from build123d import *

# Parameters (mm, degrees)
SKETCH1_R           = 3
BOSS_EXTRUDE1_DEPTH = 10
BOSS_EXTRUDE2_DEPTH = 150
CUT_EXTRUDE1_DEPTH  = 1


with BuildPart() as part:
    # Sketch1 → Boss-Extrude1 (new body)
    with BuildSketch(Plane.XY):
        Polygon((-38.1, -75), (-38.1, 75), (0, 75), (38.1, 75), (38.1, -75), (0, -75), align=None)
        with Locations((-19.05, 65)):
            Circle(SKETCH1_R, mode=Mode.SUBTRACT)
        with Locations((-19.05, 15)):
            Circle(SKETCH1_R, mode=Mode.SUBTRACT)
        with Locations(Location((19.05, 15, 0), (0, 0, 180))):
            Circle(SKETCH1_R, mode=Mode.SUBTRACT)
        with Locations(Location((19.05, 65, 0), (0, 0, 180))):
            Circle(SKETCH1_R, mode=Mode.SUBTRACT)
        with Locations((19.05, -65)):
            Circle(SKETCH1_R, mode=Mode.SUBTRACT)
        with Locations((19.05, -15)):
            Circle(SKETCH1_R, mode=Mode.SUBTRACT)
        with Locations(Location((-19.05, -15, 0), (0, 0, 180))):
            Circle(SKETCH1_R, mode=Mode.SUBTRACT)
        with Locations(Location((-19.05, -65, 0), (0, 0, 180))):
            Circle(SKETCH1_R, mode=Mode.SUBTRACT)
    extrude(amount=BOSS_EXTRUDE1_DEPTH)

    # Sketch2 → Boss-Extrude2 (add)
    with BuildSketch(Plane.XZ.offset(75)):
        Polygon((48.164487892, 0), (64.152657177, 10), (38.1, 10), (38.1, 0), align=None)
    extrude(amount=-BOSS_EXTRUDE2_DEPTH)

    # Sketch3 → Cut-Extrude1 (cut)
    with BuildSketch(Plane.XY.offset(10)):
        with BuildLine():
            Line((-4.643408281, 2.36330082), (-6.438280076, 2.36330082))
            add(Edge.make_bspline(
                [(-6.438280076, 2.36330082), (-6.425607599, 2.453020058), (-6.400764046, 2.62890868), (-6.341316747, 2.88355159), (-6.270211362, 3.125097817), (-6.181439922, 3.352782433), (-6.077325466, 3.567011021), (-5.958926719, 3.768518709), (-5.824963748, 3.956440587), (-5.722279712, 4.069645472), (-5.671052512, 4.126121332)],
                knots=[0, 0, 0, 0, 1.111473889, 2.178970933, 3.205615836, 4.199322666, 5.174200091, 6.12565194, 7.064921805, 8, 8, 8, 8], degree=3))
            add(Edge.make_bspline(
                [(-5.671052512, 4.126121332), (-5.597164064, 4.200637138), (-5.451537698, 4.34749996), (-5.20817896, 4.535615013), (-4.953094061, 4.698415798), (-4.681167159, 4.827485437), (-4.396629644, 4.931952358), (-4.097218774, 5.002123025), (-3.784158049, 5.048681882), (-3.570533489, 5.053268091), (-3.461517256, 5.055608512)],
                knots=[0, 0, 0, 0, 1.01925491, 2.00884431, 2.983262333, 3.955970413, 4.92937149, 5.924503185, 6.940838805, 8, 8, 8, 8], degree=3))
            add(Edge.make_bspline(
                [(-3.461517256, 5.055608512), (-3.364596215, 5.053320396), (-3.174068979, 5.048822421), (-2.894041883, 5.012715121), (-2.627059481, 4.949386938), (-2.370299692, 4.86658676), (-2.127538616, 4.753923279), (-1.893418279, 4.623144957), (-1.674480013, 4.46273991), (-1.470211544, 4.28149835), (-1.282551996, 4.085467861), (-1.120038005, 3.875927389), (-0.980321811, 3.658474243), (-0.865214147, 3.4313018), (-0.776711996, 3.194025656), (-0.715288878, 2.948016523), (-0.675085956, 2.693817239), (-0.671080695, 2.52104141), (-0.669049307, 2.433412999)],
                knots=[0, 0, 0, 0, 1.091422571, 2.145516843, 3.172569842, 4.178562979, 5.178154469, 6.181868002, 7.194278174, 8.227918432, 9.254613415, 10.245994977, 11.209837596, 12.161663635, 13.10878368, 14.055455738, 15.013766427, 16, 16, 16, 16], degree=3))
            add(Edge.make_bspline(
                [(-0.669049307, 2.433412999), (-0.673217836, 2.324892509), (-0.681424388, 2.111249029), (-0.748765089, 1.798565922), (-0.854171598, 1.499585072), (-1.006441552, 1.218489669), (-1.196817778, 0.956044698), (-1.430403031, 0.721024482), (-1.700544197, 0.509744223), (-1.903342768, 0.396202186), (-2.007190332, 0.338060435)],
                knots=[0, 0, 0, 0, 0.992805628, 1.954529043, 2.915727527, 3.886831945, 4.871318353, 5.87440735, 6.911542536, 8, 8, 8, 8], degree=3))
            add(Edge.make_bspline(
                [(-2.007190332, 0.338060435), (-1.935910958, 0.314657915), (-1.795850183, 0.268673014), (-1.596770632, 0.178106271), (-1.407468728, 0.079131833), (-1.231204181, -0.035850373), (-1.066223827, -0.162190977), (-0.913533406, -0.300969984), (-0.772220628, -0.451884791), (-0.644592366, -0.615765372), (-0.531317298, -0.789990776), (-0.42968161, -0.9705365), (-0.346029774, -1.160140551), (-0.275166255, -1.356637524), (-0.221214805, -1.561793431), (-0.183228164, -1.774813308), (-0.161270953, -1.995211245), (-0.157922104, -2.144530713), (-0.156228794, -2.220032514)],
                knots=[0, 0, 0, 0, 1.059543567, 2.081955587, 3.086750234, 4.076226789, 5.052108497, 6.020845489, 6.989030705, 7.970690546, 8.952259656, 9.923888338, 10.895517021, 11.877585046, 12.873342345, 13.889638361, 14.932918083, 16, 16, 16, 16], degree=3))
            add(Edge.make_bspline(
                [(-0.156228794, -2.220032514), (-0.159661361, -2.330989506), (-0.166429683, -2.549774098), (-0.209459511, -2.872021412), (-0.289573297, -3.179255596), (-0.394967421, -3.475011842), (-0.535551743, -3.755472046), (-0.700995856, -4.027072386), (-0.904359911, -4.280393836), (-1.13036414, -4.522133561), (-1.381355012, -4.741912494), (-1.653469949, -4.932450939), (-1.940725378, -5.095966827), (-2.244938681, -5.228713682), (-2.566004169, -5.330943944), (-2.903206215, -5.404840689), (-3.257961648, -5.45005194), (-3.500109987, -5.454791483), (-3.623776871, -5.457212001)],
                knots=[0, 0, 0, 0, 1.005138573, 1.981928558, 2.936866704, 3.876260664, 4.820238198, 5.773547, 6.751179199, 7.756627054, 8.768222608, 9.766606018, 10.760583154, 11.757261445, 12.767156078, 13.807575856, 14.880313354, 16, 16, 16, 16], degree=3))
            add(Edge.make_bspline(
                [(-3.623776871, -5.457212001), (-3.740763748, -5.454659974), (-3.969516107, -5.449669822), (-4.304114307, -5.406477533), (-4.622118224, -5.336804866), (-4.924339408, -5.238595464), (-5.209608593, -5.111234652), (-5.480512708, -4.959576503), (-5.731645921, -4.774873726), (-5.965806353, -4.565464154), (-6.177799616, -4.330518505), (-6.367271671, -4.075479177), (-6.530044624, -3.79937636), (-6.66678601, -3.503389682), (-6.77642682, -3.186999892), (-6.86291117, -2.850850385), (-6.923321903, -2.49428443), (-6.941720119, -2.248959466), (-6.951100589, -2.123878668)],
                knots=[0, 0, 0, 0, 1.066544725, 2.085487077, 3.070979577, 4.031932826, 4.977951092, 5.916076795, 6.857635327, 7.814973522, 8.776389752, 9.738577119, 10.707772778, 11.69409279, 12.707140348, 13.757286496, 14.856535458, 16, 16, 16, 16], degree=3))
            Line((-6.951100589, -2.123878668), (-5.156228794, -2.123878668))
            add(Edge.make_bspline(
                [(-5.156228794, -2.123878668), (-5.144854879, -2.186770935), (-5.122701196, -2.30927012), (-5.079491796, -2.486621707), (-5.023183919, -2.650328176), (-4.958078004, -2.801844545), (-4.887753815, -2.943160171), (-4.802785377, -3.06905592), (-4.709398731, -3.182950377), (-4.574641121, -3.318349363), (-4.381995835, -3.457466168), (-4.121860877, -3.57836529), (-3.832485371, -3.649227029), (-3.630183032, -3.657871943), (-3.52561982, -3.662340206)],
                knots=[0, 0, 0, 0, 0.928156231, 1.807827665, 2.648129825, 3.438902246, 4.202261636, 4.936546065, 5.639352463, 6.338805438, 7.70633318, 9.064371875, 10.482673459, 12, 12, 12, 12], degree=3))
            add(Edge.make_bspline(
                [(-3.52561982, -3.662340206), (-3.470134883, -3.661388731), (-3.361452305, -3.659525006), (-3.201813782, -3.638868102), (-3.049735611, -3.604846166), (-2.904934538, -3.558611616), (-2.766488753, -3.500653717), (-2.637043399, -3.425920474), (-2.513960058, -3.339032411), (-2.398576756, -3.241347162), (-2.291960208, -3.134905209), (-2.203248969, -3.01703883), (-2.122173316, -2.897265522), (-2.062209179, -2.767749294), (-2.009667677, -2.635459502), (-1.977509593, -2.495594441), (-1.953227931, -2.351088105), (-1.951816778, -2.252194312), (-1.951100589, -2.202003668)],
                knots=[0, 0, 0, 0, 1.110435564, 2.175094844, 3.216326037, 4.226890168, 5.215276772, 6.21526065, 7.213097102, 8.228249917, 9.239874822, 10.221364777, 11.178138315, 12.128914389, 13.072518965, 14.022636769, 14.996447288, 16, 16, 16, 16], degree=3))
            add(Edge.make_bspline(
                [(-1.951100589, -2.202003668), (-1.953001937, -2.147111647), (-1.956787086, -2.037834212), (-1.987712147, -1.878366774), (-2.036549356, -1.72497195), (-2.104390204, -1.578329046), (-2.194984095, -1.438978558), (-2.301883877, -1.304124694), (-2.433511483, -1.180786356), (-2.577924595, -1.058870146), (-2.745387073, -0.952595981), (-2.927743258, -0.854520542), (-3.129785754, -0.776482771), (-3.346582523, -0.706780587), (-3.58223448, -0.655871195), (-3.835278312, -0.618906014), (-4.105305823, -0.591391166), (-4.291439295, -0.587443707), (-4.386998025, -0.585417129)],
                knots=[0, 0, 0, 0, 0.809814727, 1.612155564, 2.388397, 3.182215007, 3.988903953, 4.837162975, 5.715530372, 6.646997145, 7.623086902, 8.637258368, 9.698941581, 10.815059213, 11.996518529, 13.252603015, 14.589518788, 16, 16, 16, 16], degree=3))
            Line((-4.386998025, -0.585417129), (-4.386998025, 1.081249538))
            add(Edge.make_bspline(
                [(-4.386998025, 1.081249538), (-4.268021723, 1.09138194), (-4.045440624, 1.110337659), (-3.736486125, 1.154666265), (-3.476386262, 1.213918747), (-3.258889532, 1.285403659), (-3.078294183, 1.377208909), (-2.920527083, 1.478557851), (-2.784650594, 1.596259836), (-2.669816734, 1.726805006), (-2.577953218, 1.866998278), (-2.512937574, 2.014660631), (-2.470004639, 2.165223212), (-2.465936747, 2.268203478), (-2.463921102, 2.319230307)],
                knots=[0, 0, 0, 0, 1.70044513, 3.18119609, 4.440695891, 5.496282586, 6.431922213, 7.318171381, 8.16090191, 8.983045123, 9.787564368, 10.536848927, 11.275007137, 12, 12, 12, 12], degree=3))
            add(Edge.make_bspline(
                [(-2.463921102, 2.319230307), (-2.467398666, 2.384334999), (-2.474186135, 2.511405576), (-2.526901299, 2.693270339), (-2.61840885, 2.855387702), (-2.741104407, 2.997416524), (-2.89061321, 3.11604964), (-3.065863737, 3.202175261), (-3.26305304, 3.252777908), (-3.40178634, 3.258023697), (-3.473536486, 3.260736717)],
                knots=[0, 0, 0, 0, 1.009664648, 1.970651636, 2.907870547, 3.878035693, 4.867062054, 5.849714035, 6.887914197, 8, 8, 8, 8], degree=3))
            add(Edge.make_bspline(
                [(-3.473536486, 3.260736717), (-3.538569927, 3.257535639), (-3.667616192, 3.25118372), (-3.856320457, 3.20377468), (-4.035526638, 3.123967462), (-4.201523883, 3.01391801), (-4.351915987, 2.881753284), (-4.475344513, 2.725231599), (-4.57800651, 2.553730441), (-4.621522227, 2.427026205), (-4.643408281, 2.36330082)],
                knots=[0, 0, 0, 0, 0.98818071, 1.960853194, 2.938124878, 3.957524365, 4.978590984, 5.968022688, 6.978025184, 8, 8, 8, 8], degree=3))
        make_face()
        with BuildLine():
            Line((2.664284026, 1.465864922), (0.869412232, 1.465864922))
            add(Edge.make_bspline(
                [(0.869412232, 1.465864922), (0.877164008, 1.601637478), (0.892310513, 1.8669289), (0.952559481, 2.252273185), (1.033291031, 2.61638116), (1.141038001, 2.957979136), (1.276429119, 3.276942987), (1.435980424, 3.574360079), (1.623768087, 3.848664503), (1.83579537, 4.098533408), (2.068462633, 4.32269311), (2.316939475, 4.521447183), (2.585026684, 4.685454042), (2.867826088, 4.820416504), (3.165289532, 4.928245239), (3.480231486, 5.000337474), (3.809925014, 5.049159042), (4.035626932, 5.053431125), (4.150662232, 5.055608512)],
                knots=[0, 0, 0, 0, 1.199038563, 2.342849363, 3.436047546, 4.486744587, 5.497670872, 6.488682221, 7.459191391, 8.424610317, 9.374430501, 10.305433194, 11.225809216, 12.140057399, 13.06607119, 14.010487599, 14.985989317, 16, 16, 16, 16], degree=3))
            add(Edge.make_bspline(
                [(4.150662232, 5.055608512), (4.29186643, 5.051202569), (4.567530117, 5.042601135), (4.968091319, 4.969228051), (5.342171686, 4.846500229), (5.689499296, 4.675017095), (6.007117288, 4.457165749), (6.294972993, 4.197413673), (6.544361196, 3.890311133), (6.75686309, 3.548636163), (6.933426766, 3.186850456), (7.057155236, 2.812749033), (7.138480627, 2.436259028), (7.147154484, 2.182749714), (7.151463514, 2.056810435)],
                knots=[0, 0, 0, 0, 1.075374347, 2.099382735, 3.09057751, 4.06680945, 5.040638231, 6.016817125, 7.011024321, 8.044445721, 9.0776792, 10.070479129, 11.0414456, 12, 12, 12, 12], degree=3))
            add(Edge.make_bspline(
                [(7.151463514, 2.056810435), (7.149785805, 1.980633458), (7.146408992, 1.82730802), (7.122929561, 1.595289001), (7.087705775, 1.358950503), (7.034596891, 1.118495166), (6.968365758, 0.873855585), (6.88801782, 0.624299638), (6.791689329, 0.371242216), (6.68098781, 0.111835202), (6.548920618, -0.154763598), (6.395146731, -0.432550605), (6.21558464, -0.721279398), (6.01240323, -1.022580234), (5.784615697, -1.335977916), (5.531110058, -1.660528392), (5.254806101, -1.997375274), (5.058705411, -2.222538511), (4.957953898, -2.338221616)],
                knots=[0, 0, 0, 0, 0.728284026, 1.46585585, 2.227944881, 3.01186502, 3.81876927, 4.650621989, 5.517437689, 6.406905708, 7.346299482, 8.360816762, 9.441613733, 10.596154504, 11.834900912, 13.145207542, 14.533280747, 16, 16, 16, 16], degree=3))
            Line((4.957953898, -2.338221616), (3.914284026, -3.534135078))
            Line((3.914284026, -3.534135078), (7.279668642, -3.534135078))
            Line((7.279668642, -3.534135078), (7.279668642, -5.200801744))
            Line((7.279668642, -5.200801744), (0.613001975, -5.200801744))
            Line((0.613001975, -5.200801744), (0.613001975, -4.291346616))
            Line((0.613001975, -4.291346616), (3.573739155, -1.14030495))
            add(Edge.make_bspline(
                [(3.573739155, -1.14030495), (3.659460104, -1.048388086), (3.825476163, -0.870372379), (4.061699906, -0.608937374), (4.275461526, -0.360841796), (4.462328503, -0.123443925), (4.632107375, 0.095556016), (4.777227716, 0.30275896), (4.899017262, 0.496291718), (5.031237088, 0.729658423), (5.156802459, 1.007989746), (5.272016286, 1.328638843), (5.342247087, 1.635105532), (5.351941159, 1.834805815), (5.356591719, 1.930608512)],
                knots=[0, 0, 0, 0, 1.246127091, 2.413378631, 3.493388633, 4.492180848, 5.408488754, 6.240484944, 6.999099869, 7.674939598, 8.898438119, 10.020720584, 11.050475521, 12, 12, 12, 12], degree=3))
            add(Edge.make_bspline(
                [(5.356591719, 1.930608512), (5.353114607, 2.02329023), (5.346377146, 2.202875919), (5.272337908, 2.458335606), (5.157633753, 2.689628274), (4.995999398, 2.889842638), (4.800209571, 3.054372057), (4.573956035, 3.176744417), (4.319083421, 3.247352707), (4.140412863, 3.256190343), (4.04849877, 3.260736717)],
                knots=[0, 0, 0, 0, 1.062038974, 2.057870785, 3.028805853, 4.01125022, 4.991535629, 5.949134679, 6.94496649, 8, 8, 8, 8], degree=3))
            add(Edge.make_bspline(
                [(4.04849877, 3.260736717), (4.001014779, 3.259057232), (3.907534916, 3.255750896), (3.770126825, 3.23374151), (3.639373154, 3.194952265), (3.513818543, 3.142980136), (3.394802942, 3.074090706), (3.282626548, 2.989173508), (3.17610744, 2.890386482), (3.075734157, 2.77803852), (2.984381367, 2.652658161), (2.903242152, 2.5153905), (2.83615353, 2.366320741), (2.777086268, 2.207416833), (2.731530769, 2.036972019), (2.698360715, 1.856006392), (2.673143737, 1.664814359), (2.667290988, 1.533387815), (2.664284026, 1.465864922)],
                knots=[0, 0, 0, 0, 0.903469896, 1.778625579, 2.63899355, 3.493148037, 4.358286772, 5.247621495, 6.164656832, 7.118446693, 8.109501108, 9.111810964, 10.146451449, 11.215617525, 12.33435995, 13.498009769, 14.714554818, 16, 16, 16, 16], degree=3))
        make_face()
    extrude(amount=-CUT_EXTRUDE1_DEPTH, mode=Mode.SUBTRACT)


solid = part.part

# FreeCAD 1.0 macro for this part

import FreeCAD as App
import Part
import Sketcher
Q = App.Units.Quantity


def add_polygon(sketch, points):
    """Adds a closed chain of lines whose ends are joined by coincident constraints."""
    first, n = sketch.GeometryCount, len(points)
    for a, b in zip(points, points[1:] + points[:1]):
        sketch.addGeometry(Part.LineSegment(App.Vector(*a, 0), App.Vector(*b, 0)), False)
    for i in range(n):
        sketch.addConstraint(Sketcher.Constraint("Coincident", first + i, 2, first + (i + 1) % n, 1))

doc = App.newDocument("Part")
body = doc.addObject("PartDesign::Body", "Body")

sketch1 = doc.addObject("Sketcher::SketchObject", "Sketch")
body.addObject(sketch1)
sketch1.AttachmentSupport = (doc.XY_Plane, [""])
sketch1.MapMode = "FlatFace"
add_polygon(sketch1, [(-38.1, 75), (-38.1, -75), (38.1, -75), (38.1, 75)])
sketch1.addGeometry(Part.Circle(App.Vector(19.1, -65, 0), App.Vector(0, 0, 1), 3), False)
sketch1.addGeometry(Part.Circle(App.Vector(19.1, -15, 0), App.Vector(0, 0, 1), 3), False)
sketch1.addGeometry(Part.Circle(App.Vector(-19.1, -65, 0), App.Vector(0, 0, 1), 3), False)
sketch1.addGeometry(Part.Circle(App.Vector(-19.1, -15, 0), App.Vector(0, 0, 1), 3), False)
sketch1.addGeometry(Part.Circle(App.Vector(19.1, 15, 0), App.Vector(0, 0, 1), 3), False)
sketch1.addGeometry(Part.Circle(App.Vector(19.1, 65, 0), App.Vector(0, 0, 1), 3), False)
sketch1.addGeometry(Part.Circle(App.Vector(-19.1, 15, 0), App.Vector(0, 0, 1), 3), False)
sketch1.addGeometry(Part.Circle(App.Vector(-19.1, 65, 0), App.Vector(0, 0, 1), 3), False)
sketch1.addConstraint([
    Sketcher.Constraint("Vertical", 0),
    Sketcher.Constraint("Horizontal", 1),
    Sketcher.Constraint("Vertical", 2),
    Sketcher.Constraint("Horizontal", 3),
    Sketcher.Constraint("Equal", 4, 5),
    Sketcher.Constraint("Equal", 5, 6),
    Sketcher.Constraint("Equal", 6, 7),
    Sketcher.Constraint("Equal", 7, 8),
    Sketcher.Constraint("Equal", 8, 9),
    Sketcher.Constraint("Equal", 9, 10),
    Sketcher.Constraint("Equal", 10, 11),
    Sketcher.Constraint("Symmetric", 7, 3, 8, 3, -1, 1),
    Sketcher.Constraint("Symmetric", 6, 3, 9, 3, -1, 1),
    Sketcher.Constraint("Symmetric", 5, 3, 10, 3, -1, 1),
    Sketcher.Constraint("Symmetric", 4, 3, 11, 3, -1, 1),
    Sketcher.Constraint("Symmetric", 0, 2, 2, 2, -1, 1),
    Sketcher.Constraint("Symmetric", 4, 3, 6, 3, -2),
    Sketcher.Constraint("Symmetric", 5, 3, 7, 3, -2),
    Sketcher.Constraint("Vertical", 4, 3, 5, 3),
    Sketcher.Constraint("Diameter", 4, Q("6 mm")),
    Sketcher.Constraint("DistanceY", 0, 2, 0, 1, Q("150 mm")),
    Sketcher.Constraint("DistanceX", 1, 1, 1, 2, Q("76.2 mm")),
    Sketcher.Constraint("DistanceY", 4, 3, -1, 1, Q("65 mm")),
    Sketcher.Constraint("DistanceY", 5, 3, -1, 1, Q("15 mm")),
    Sketcher.Constraint("DistanceX", 6, 3, 4, 3, Q("38.1 mm")),
])
pad1 = doc.addObject("PartDesign::Pad", "Pad")
body.addObject(pad1)
pad1.Profile = sketch1
pad1.Length = 10

sketch2 = doc.addObject("Sketcher::SketchObject", "Sketch001")
body.addObject(sketch2)
sketch2.AttachmentSupport = (doc.XZ_Plane, [""])
sketch2.MapMode = "FlatFace"
sketch2.AttachmentOffset = App.Placement(App.Vector(0, 0, 75), App.Rotation())
add_polygon(sketch2, [(48, 0), (64, 10), (38, 10), (38, 0)])
sketch2.addConstraint([
    Sketcher.Constraint("Horizontal", 1),
    Sketcher.Constraint("Vertical", 2),
    Sketcher.Constraint("Horizontal", 3),
    Sketcher.Constraint("PointOnObject", 2, 2, -1),
    Sketcher.Constraint("DistanceY", 2, 2, 2, 1, Q("10 mm")),
    Sketcher.Constraint("DistanceX", -1, 1, 1, 2, Q("38.1 mm")),
    Sketcher.Constraint("Distance", 0, Q("18.857931 mm")),
    Sketcher.Constraint("DistanceX", 1, 2, 1, 1, Q("26.052657 mm")),
])
pad2 = doc.addObject("PartDesign::Pad", "Pad001")
body.addObject(pad2)
pad2.Profile = sketch2
pad2.Length = 150
pad2.Reversed = True

sketch3 = doc.addObject("Sketcher::SketchObject", "Sketch002")
body.addObject(sketch3)
sketch3.AttachmentSupport = (doc.XY_Plane, [""])
sketch3.MapMode = "FlatFace"
sketch3.AttachmentOffset = App.Placement(App.Vector(0, 0, 10), App.Rotation())
sketch3.addGeometry([
    Part.LineSegment(App.Vector(-6.43828, 2.363301, 0), App.Vector(-4.643408, 2.363301, 0)),
    Part.BSplineCurve([App.Vector(-3.473536, 3.260737, 0), App.Vector(-3.53857, 3.257536, 0), App.Vector(-3.667616, 3.251184, 0), App.Vector(-3.85632, 3.203775, 0), App.Vector(-4.035527, 3.123967, 0), App.Vector(-4.201524, 3.013918, 0), App.Vector(-4.351916, 2.881753, 0), App.Vector(-4.475345, 2.725232, 0), App.Vector(-4.578007, 2.55373, 0), App.Vector(-4.621522, 2.427026, 0), App.Vector(-4.643408, 2.363301, 0)], [4, 1, 1, 1, 1, 1, 1, 1, 4], [0, 0.98818071, 1.960853194, 2.938124878, 3.957524365, 4.978590984, 5.968022688, 6.978025184, 8], False, 3, [1, 1, 1, 1, 1, 1, 1, 1, 1, 1, 1], False),
    Part.BSplineCurve([App.Vector(-2.463921, 2.31923, 0), App.Vector(-2.467399, 2.384335, 0), App.Vector(-2.474186, 2.511406, 0), App.Vector(-2.526901, 2.69327, 0), App.Vector(-2.618409, 2.855388, 0), App.Vector(-2.741104, 2.997417, 0), App.Vector(-2.890613, 3.11605, 0), App.Vector(-3.065864, 3.202175, 0), App.Vector(-3.263053, 3.252778, 0), App.Vector(-3.401786, 3.258024, 0), App.Vector(-3.473536, 3.260737, 0)], [4, 1, 1, 1, 1, 1, 1, 1, 4], [0, 1.009664648, 1.970651636, 2.907870547, 3.878035693, 4.867062054, 5.849714035, 6.887914197, 8], False, 3, [1, 1, 1, 1, 1, 1, 1, 1, 1, 1, 1], False),
    Part.BSplineCurve([App.Vector(-4.386998, 1.08125, 0), App.Vector(-4.268022, 1.091382, 0), App.Vector(-4.045441, 1.110338, 0), App.Vector(-3.736486, 1.154666, 0), App.Vector(-3.476386, 1.213919, 0), App.Vector(-3.25889, 1.285404, 0), App.Vector(-3.078294, 1.377209, 0), App.Vector(-2.920527, 1.478558, 0), App.Vector(-2.784651, 1.59626, 0), App.Vector(-2.669817, 1.726805, 0), App.Vector(-2.577953, 1.866998, 0), App.Vector(-2.512938, 2.014661, 0), App.Vector(-2.470005, 2.165223, 0), App.Vector(-2.465937, 2.268203, 0), App.Vector(-2.463921, 2.31923, 0)], [4, 1, 1, 1, 1, 1, 1, 1, 1, 1, 1, 1, 4], [0, 1.70044513, 3.18119609, 4.440695891, 5.496282586, 6.431922213, 7.318171381, 8.16090191, 8.983045123, 9.787564368, 10.536848927, 11.275007137, 12], False, 3, [1, 1, 1, 1, 1, 1, 1, 1, 1, 1, 1, 1, 1, 1, 1], False),
    Part.LineSegment(App.Vector(-4.386998, 1.08125, 0), App.Vector(-4.386998, -0.585417, 0)),
    Part.BSplineCurve([App.Vector(-1.951101, -2.202004, 0), App.Vector(-1.953002, -2.147112, 0), App.Vector(-1.956787, -2.037834, 0), App.Vector(-1.987712, -1.878367, 0), App.Vector(-2.036549, -1.724972, 0), App.Vector(-2.10439, -1.578329, 0), App.Vector(-2.194984, -1.438979, 0), App.Vector(-2.301884, -1.304125, 0), App.Vector(-2.433511, -1.180786, 0), App.Vector(-2.577925, -1.05887, 0), App.Vector(-2.745387, -0.952596, 0), App.Vector(-2.927743, -0.854521, 0), App.Vector(-3.129786, -0.776483, 0), App.Vector(-3.346583, -0.706781, 0), App.Vector(-3.582234, -0.655871, 0), App.Vector(-3.835278, -0.618906, 0), App.Vector(-4.105306, -0.591391, 0), App.Vector(-4.291439, -0.587444, 0), App.Vector(-4.386998, -0.585417, 0)], [4, 1, 1, 1, 1, 1, 1, 1, 1, 1, 1, 1, 1, 1, 1, 1, 4], [0, 0.809814727, 1.612155564, 2.388397, 3.182215007, 3.988903953, 4.837162975, 5.715530372, 6.646997145, 7.623086902, 8.637258368, 9.698941581, 10.815059213, 11.996518529, 13.252603015, 14.589518788, 16], False, 3, [1, 1, 1, 1, 1, 1, 1, 1, 1, 1, 1, 1, 1, 1, 1, 1, 1, 1, 1], False),
    Part.BSplineCurve([App.Vector(-3.52562, -3.66234, 0), App.Vector(-3.470135, -3.661389, 0), App.Vector(-3.361452, -3.659525, 0), App.Vector(-3.201814, -3.638868, 0), App.Vector(-3.049736, -3.604846, 0), App.Vector(-2.904935, -3.558612, 0), App.Vector(-2.766489, -3.500654, 0), App.Vector(-2.637043, -3.42592, 0), App.Vector(-2.51396, -3.339032, 0), App.Vector(-2.398577, -3.241347, 0), App.Vector(-2.29196, -3.134905, 0), App.Vector(-2.203249, -3.017039, 0), App.Vector(-2.122173, -2.897266, 0), App.Vector(-2.062209, -2.767749, 0), App.Vector(-2.009668, -2.63546, 0), App.Vector(-1.97751, -2.495594, 0), App.Vector(-1.953228, -2.351088, 0), App.Vector(-1.951817, -2.252194, 0), App.Vector(-1.951101, -2.202004, 0)], [4, 1, 1, 1, 1, 1, 1, 1, 1, 1, 1, 1, 1, 1, 1, 1, 4], [0, 1.110435564, 2.175094844, 3.216326037, 4.226890168, 5.215276772, 6.21526065, 7.213097102, 8.228249917, 9.239874822, 10.221364777, 11.178138315, 12.128914389, 13.072518965, 14.022636769, 14.996447288, 16], False, 3, [1, 1, 1, 1, 1, 1, 1, 1, 1, 1, 1, 1, 1, 1, 1, 1, 1, 1, 1], False),
    Part.BSplineCurve([App.Vector(-5.156229, -2.123879, 0), App.Vector(-5.144855, -2.186771, 0), App.Vector(-5.122701, -2.30927, 0), App.Vector(-5.079492, -2.486622, 0), App.Vector(-5.023184, -2.650328, 0), App.Vector(-4.958078, -2.801845, 0), App.Vector(-4.887754, -2.94316, 0), App.Vector(-4.802785, -3.069056, 0), App.Vector(-4.709399, -3.18295, 0), App.Vector(-4.574641, -3.318349, 0), App.Vector(-4.381996, -3.457466, 0), App.Vector(-4.121861, -3.578365, 0), App.Vector(-3.832485, -3.649227, 0), App.Vector(-3.630183, -3.657872, 0), App.Vector(-3.52562, -3.66234, 0)], [4, 1, 1, 1, 1, 1, 1, 1, 1, 1, 1, 1, 4], [0, 0.928156231, 1.807827665, 2.648129825, 3.438902246, 4.202261636, 4.936546065, 5.639352463, 6.338805438, 7.70633318, 9.064371875, 10.482673459, 12], False, 3, [1, 1, 1, 1, 1, 1, 1, 1, 1, 1, 1, 1, 1, 1, 1], False),
    Part.LineSegment(App.Vector(-5.156229, -2.123879, 0), App.Vector(-6.951101, -2.123879, 0)),
    Part.BSplineCurve([App.Vector(-3.623777, -5.457212, 0), App.Vector(-3.740764, -5.45466, 0), App.Vector(-3.969516, -5.44967, 0), App.Vector(-4.304114, -5.406478, 0), App.Vector(-4.622118, -5.336805, 0), App.Vector(-4.924339, -5.238595, 0), App.Vector(-5.209609, -5.111235, 0), App.Vector(-5.480513, -4.959577, 0), App.Vector(-5.731646, -4.774874, 0), App.Vector(-5.965806, -4.565464, 0), App.Vector(-6.1778, -4.330519, 0), App.Vector(-6.367272, -4.075479, 0), App.Vector(-6.530045, -3.799376, 0), App.Vector(-6.666786, -3.50339, 0), App.Vector(-6.776427, -3.187, 0), App.Vector(-6.862911, -2.85085, 0), App.Vector(-6.923322, -2.494284, 0), App.Vector(-6.94172, -2.248959, 0), App.Vector(-6.951101, -2.123879, 0)], [4, 1, 1, 1, 1, 1, 1, 1, 1, 1, 1, 1, 1, 1, 1, 1, 4], [0, 1.066544725, 2.085487077, 3.070979577, 4.031932826, 4.977951092, 5.916076795, 6.857635327, 7.814973522, 8.776389752, 9.738577119, 10.707772778, 11.69409279, 12.707140348, 13.757286496, 14.856535458, 16], False, 3, [1, 1, 1, 1, 1, 1, 1, 1, 1, 1, 1, 1, 1, 1, 1, 1, 1, 1, 1], False),
    Part.BSplineCurve([App.Vector(-0.156229, -2.220033, 0), App.Vector(-0.159661, -2.33099, 0), App.Vector(-0.16643, -2.549774, 0), App.Vector(-0.20946, -2.872021, 0), App.Vector(-0.289573, -3.179256, 0), App.Vector(-0.394967, -3.475012, 0), App.Vector(-0.535552, -3.755472, 0), App.Vector(-0.700996, -4.027072, 0), App.Vector(-0.90436, -4.280394, 0), App.Vector(-1.130364, -4.522134, 0), App.Vector(-1.381355, -4.741912, 0), App.Vector(-1.65347, -4.932451, 0), App.Vector(-1.940725, -5.095967, 0), App.Vector(-2.244939, -5.228714, 0), App.Vector(-2.566004, -5.330944, 0), App.Vector(-2.903206, -5.404841, 0), App.Vector(-3.257962, -5.450052, 0), App.Vector(-3.50011, -5.454791, 0), App.Vector(-3.623777, -5.457212, 0)], [4, 1, 1, 1, 1, 1, 1, 1, 1, 1, 1, 1, 1, 1, 1, 1, 4], [0, 1.005138573, 1.981928558, 2.936866704, 3.876260664, 4.820238198, 5.773547, 6.751179199, 7.756627054, 8.768222608, 9.766606018, 10.760583154, 11.757261445, 12.767156078, 13.807575856, 14.880313354, 16], False, 3, [1, 1, 1, 1, 1, 1, 1, 1, 1, 1, 1, 1, 1, 1, 1, 1, 1, 1, 1], False),
    Part.BSplineCurve([App.Vector(-2.00719, 0.33806, 0), App.Vector(-1.935911, 0.314658, 0), App.Vector(-1.79585, 0.268673, 0), App.Vector(-1.596771, 0.178106, 0), App.Vector(-1.407469, 0.079132, 0), App.Vector(-1.231204, -0.03585, 0), App.Vector(-1.066224, -0.162191, 0), App.Vector(-0.913533, -0.30097, 0), App.Vector(-0.772221, -0.451885, 0), App.Vector(-0.644592, -0.615765, 0), App.Vector(-0.531317, -0.789991, 0), App.Vector(-0.429682, -0.970537, 0), App.Vector(-0.34603, -1.160141, 0), App.Vector(-0.275166, -1.356638, 0), App.Vector(-0.221215, -1.561793, 0), App.Vector(-0.183228, -1.774813, 0), App.Vector(-0.161271, -1.995211, 0), App.Vector(-0.157922, -2.144531, 0), App.Vector(-0.156229, -2.220033, 0)], [4, 1, 1, 1, 1, 1, 1, 1, 1, 1, 1, 1, 1, 1, 1, 1, 4], [0, 1.059543567, 2.081955587, 3.086750234, 4.076226789, 5.052108497, 6.020845489, 6.989030705, 7.970690546, 8.952259656, 9.923888338, 10.895517021, 11.877585046, 12.873342345, 13.889638361, 14.932918083, 16], False, 3, [1, 1, 1, 1, 1, 1, 1, 1, 1, 1, 1, 1, 1, 1, 1, 1, 1, 1, 1], False),
    Part.BSplineCurve([App.Vector(-0.669049, 2.433413, 0), App.Vector(-0.673218, 2.324893, 0), App.Vector(-0.681424, 2.111249, 0), App.Vector(-0.748765, 1.798566, 0), App.Vector(-0.854172, 1.499585, 0), App.Vector(-1.006442, 1.21849, 0), App.Vector(-1.196818, 0.956045, 0), App.Vector(-1.430403, 0.721024, 0), App.Vector(-1.700544, 0.509744, 0), App.Vector(-1.903343, 0.396202, 0), App.Vector(-2.00719, 0.33806, 0)], [4, 1, 1, 1, 1, 1, 1, 1, 4], [0, 0.992805628, 1.954529043, 2.915727527, 3.886831945, 4.871318353, 5.87440735, 6.911542536, 8], False, 3, [1, 1, 1, 1, 1, 1, 1, 1, 1, 1, 1], False),
    Part.BSplineCurve([App.Vector(-3.461517, 5.055609, 0), App.Vector(-3.364596, 5.05332, 0), App.Vector(-3.174069, 5.048822, 0), App.Vector(-2.894042, 5.012715, 0), App.Vector(-2.627059, 4.949387, 0), App.Vector(-2.3703, 4.866587, 0), App.Vector(-2.127539, 4.753923, 0), App.Vector(-1.893418, 4.623145, 0), App.Vector(-1.67448, 4.46274, 0), App.Vector(-1.470212, 4.281498, 0), App.Vector(-1.282552, 4.085468, 0), App.Vector(-1.120038, 3.875927, 0), App.Vector(-0.980322, 3.658474, 0), App.Vector(-0.865214, 3.431302, 0), App.Vector(-0.776712, 3.194026, 0), App.Vector(-0.715289, 2.948017, 0), App.Vector(-0.675086, 2.693817, 0), App.Vector(-0.671081, 2.521041, 0), App.Vector(-0.669049, 2.433413, 0)], [4, 1, 1, 1, 1, 1, 1, 1, 1, 1, 1, 1, 1, 1, 1, 1, 4], [0, 1.091422571, 2.145516843, 3.172569842, 4.178562979, 5.178154469, 6.181868002, 7.194278174, 8.227918432, 9.254613415, 10.245994977, 11.209837596, 12.161663635, 13.10878368, 14.055455738, 15.013766427, 16], False, 3, [1, 1, 1, 1, 1, 1, 1, 1, 1, 1, 1, 1, 1, 1, 1, 1, 1, 1, 1], False),
    Part.BSplineCurve([App.Vector(-5.671053, 4.126121, 0), App.Vector(-5.597164, 4.200637, 0), App.Vector(-5.451538, 4.3475, 0), App.Vector(-5.208179, 4.535615, 0), App.Vector(-4.953094, 4.698416, 0), App.Vector(-4.681167, 4.827485, 0), App.Vector(-4.39663, 4.931952, 0), App.Vector(-4.097219, 5.002123, 0), App.Vector(-3.784158, 5.048682, 0), App.Vector(-3.570533, 5.053268, 0), App.Vector(-3.461517, 5.055609, 0)], [4, 1, 1, 1, 1, 1, 1, 1, 4], [0, 1.01925491, 2.00884431, 2.983262333, 3.955970413, 4.92937149, 5.924503185, 6.940838805, 8], False, 3, [1, 1, 1, 1, 1, 1, 1, 1, 1, 1, 1], False),
    Part.BSplineCurve([App.Vector(-6.43828, 2.363301, 0), App.Vector(-6.425608, 2.45302, 0), App.Vector(-6.400764, 2.628909, 0), App.Vector(-6.341317, 2.883552, 0), App.Vector(-6.270211, 3.125098, 0), App.Vector(-6.18144, 3.352782, 0), App.Vector(-6.077325, 3.567011, 0), App.Vector(-5.958927, 3.768519, 0), App.Vector(-5.824964, 3.956441, 0), App.Vector(-5.72228, 4.069645, 0), App.Vector(-5.671053, 4.126121, 0)], [4, 1, 1, 1, 1, 1, 1, 1, 4], [0, 1.111473889, 2.178970933, 3.205615836, 4.199322666, 5.174200091, 6.12565194, 7.064921805, 8], False, 3, [1, 1, 1, 1, 1, 1, 1, 1, 1, 1, 1], False),
    Part.LineSegment(App.Vector(0.869412, 1.465865, 0), App.Vector(2.664284, 1.465865, 0)),
    Part.BSplineCurve([App.Vector(4.048499, 3.260737, 0), App.Vector(4.001015, 3.259057, 0), App.Vector(3.907535, 3.255751, 0), App.Vector(3.770127, 3.233742, 0), App.Vector(3.639373, 3.194952, 0), App.Vector(3.513819, 3.14298, 0), App.Vector(3.394803, 3.074091, 0), App.Vector(3.282627, 2.989174, 0), App.Vector(3.176107, 2.890386, 0), App.Vector(3.075734, 2.778039, 0), App.Vector(2.984381, 2.652658, 0), App.Vector(2.903242, 2.515391, 0), App.Vector(2.836154, 2.366321, 0), App.Vector(2.777086, 2.207417, 0), App.Vector(2.731531, 2.036972, 0), App.Vector(2.698361, 1.856006, 0), App.Vector(2.673144, 1.664814, 0), App.Vector(2.667291, 1.533388, 0), App.Vector(2.664284, 1.465865, 0)], [4, 1, 1, 1, 1, 1, 1, 1, 1, 1, 1, 1, 1, 1, 1, 1, 4], [0, 0.903469896, 1.778625579, 2.63899355, 3.493148037, 4.358286772, 5.247621495, 6.164656832, 7.118446693, 8.109501108, 9.111810964, 10.146451449, 11.215617525, 12.33435995, 13.498009769, 14.714554818, 16], False, 3, [1, 1, 1, 1, 1, 1, 1, 1, 1, 1, 1, 1, 1, 1, 1, 1, 1, 1, 1], False),
    Part.BSplineCurve([App.Vector(5.356592, 1.930609, 0), App.Vector(5.353115, 2.02329, 0), App.Vector(5.346377, 2.202876, 0), App.Vector(5.272338, 2.458336, 0), App.Vector(5.157634, 2.689628, 0), App.Vector(4.995999, 2.889843, 0), App.Vector(4.80021, 3.054372, 0), App.Vector(4.573956, 3.176744, 0), App.Vector(4.319083, 3.247353, 0), App.Vector(4.140413, 3.25619, 0), App.Vector(4.048499, 3.260737, 0)], [4, 1, 1, 1, 1, 1, 1, 1, 4], [0, 1.062038974, 2.057870785, 3.028805853, 4.01125022, 4.991535629, 5.949134679, 6.94496649, 8], False, 3, [1, 1, 1, 1, 1, 1, 1, 1, 1, 1, 1], False),
    Part.BSplineCurve([App.Vector(3.573739, -1.140305, 0), App.Vector(3.65946, -1.048388, 0), App.Vector(3.825476, -0.870372, 0), App.Vector(4.0617, -0.608937, 0), App.Vector(4.275462, -0.360842, 0), App.Vector(4.462329, -0.123444, 0), App.Vector(4.632107, 0.095556, 0), App.Vector(4.777228, 0.302759, 0), App.Vector(4.899017, 0.496292, 0), App.Vector(5.031237, 0.729658, 0), App.Vector(5.156802, 1.00799, 0), App.Vector(5.272016, 1.328639, 0), App.Vector(5.342247, 1.635106, 0), App.Vector(5.351941, 1.834806, 0), App.Vector(5.356592, 1.930609, 0)], [4, 1, 1, 1, 1, 1, 1, 1, 1, 1, 1, 1, 4], [0, 1.246127091, 2.413378631, 3.493388633, 4.492180848, 5.408488754, 6.240484944, 6.999099869, 7.674939598, 8.898438119, 10.020720584, 11.050475521, 12], False, 3, [1, 1, 1, 1, 1, 1, 1, 1, 1, 1, 1, 1, 1, 1, 1], False),
    Part.LineSegment(App.Vector(3.573739, -1.140305, 0), App.Vector(0.613002, -4.291347, 0)),
    Part.LineSegment(App.Vector(0.613002, -4.291347, 0), App.Vector(0.613002, -5.200802, 0)),
    Part.LineSegment(App.Vector(0.613002, -5.200802, 0), App.Vector(7.279669, -5.200802, 0)),
    Part.LineSegment(App.Vector(7.279669, -5.200802, 0), App.Vector(7.279669, -3.534135, 0)),
    Part.LineSegment(App.Vector(7.279669, -3.534135, 0), App.Vector(3.914284, -3.534135, 0)),
    Part.LineSegment(App.Vector(3.914284, -3.534135, 0), App.Vector(4.957954, -2.338222, 0)),
    Part.BSplineCurve([App.Vector(7.151464, 2.05681, 0), App.Vector(7.149786, 1.980633, 0), App.Vector(7.146409, 1.827308, 0), App.Vector(7.12293, 1.595289, 0), App.Vector(7.087706, 1.358951, 0), App.Vector(7.034597, 1.118495, 0), App.Vector(6.968366, 0.873856, 0), App.Vector(6.888018, 0.6243, 0), App.Vector(6.791689, 0.371242, 0), App.Vector(6.680988, 0.111835, 0), App.Vector(6.548921, -0.154764, 0), App.Vector(6.395147, -0.432551, 0), App.Vector(6.215585, -0.721279, 0), App.Vector(6.012403, -1.02258, 0), App.Vector(5.784616, -1.335978, 0), App.Vector(5.53111, -1.660528, 0), App.Vector(5.254806, -1.997375, 0), App.Vector(5.058705, -2.222539, 0), App.Vector(4.957954, -2.338222, 0)], [4, 1, 1, 1, 1, 1, 1, 1, 1, 1, 1, 1, 1, 1, 1, 1, 4], [0, 0.728284026, 1.46585585, 2.227944881, 3.01186502, 3.81876927, 4.650621989, 5.517437689, 6.406905708, 7.346299482, 8.360816762, 9.441613733, 10.596154504, 11.834900912, 13.145207542, 14.533280747, 16], False, 3, [1, 1, 1, 1, 1, 1, 1, 1, 1, 1, 1, 1, 1, 1, 1, 1, 1, 1, 1], False),
    Part.BSplineCurve([App.Vector(4.150662, 5.055609, 0), App.Vector(4.291866, 5.051203, 0), App.Vector(4.56753, 5.042601, 0), App.Vector(4.968091, 4.969228, 0), App.Vector(5.342172, 4.8465, 0), App.Vector(5.689499, 4.675017, 0), App.Vector(6.007117, 4.457166, 0), App.Vector(6.294973, 4.197414, 0), App.Vector(6.544361, 3.890311, 0), App.Vector(6.756863, 3.548636, 0), App.Vector(6.933427, 3.18685, 0), App.Vector(7.057155, 2.812749, 0), App.Vector(7.138481, 2.436259, 0), App.Vector(7.147154, 2.18275, 0), App.Vector(7.151464, 2.05681, 0)], [4, 1, 1, 1, 1, 1, 1, 1, 1, 1, 1, 1, 4], [0, 1.075374347, 2.099382735, 3.09057751, 4.06680945, 5.040638231, 6.016817125, 7.011024321, 8.044445721, 9.0776792, 10.070479129, 11.0414456, 12], False, 3, [1, 1, 1, 1, 1, 1, 1, 1, 1, 1, 1, 1, 1, 1, 1], False),
    Part.BSplineCurve([App.Vector(0.869412, 1.465865, 0), App.Vector(0.877164, 1.601637, 0), App.Vector(0.892311, 1.866929, 0), App.Vector(0.952559, 2.252273, 0), App.Vector(1.033291, 2.616381, 0), App.Vector(1.141038, 2.957979, 0), App.Vector(1.276429, 3.276943, 0), App.Vector(1.43598, 3.57436, 0), App.Vector(1.623768, 3.848665, 0), App.Vector(1.835795, 4.098533, 0), App.Vector(2.068463, 4.322693, 0), App.Vector(2.316939, 4.521447, 0), App.Vector(2.585027, 4.685454, 0), App.Vector(2.867826, 4.820417, 0), App.Vector(3.16529, 4.928245, 0), App.Vector(3.480231, 5.000337, 0), App.Vector(3.809925, 5.049159, 0), App.Vector(4.035627, 5.053431, 0), App.Vector(4.150662, 5.055609, 0)], [4, 1, 1, 1, 1, 1, 1, 1, 1, 1, 1, 1, 1, 1, 1, 1, 4], [0, 1.199038563, 2.342849363, 3.436047546, 4.486744587, 5.497670872, 6.488682221, 7.459191391, 8.424610317, 9.374430501, 10.305433194, 11.225809216, 12.140057399, 13.06607119, 14.010487599, 14.985989317, 16], False, 3, [1, 1, 1, 1, 1, 1, 1, 1, 1, 1, 1, 1, 1, 1, 1, 1, 1, 1, 1], False),
], False)
sketch3.addConstraint([
    Sketcher.Constraint("Block", 1),
    Sketcher.Constraint("Block", 2),
    Sketcher.Constraint("Block", 3),
    Sketcher.Constraint("Block", 5),
    Sketcher.Constraint("Block", 6),
    Sketcher.Constraint("Block", 7),
    Sketcher.Constraint("Block", 9),
    Sketcher.Constraint("Block", 10),
    Sketcher.Constraint("Block", 11),
    Sketcher.Constraint("Block", 12),
    Sketcher.Constraint("Block", 13),
    Sketcher.Constraint("Block", 14),
    Sketcher.Constraint("Block", 15),
    Sketcher.Constraint("Block", 17),
    Sketcher.Constraint("Block", 18),
    Sketcher.Constraint("Block", 19),
    Sketcher.Constraint("Block", 26),
    Sketcher.Constraint("Block", 27),
    Sketcher.Constraint("Block", 28),
    Sketcher.Constraint("Coincident", 0, 2, 1, 2),
    Sketcher.Constraint("Coincident", 3, 1, 4, 1),
    Sketcher.Constraint("Coincident", 4, 2, 5, 2),
    Sketcher.Constraint("Coincident", 7, 1, 8, 1),
    Sketcher.Constraint("Coincident", 8, 2, 9, 2),
    Sketcher.Constraint("Coincident", 15, 1, 0, 1),
    Sketcher.Constraint("Coincident", 16, 2, 17, 2),
    Sketcher.Constraint("Coincident", 19, 1, 20, 1),
    Sketcher.Constraint("Coincident", 20, 2, 21, 1),
    Sketcher.Constraint("Coincident", 21, 2, 22, 1),
    Sketcher.Constraint("Coincident", 22, 2, 23, 1),
    Sketcher.Constraint("Coincident", 23, 2, 24, 1),
    Sketcher.Constraint("Coincident", 24, 2, 25, 1),
    Sketcher.Constraint("Coincident", 25, 2, 26, 2),
    Sketcher.Constraint("Coincident", 28, 1, 16, 1),
    Sketcher.Constraint("Vertical", 21),
    Sketcher.Constraint("Horizontal", 22),
    Sketcher.Constraint("Vertical", 23),
    Sketcher.Constraint("Horizontal", 24),
    Sketcher.Constraint("Equal", 4, 23),
    Sketcher.Constraint("DistanceX", 4, 2, 20, 2, Q("5 mm")),
    Sketcher.Constraint("DistanceY", 23, 2, 16, 2, Q("5 mm")),
    Sketcher.Constraint("DistanceX", 16, 2, 24, 2, Q("1.25 mm")),
    Sketcher.Constraint("DistanceX", 22, 1, 22, 2, Q("6.666667 mm")),
    Sketcher.Constraint("DistanceY", 21, 2, 21, 1, Q("0.909455 mm")),
])
pocket1 = doc.addObject("PartDesign::Pocket", "Pocket")
body.addObject(pocket1)
pocket1.Profile = sketch3
pocket1.Length = 1

doc.recompute()
